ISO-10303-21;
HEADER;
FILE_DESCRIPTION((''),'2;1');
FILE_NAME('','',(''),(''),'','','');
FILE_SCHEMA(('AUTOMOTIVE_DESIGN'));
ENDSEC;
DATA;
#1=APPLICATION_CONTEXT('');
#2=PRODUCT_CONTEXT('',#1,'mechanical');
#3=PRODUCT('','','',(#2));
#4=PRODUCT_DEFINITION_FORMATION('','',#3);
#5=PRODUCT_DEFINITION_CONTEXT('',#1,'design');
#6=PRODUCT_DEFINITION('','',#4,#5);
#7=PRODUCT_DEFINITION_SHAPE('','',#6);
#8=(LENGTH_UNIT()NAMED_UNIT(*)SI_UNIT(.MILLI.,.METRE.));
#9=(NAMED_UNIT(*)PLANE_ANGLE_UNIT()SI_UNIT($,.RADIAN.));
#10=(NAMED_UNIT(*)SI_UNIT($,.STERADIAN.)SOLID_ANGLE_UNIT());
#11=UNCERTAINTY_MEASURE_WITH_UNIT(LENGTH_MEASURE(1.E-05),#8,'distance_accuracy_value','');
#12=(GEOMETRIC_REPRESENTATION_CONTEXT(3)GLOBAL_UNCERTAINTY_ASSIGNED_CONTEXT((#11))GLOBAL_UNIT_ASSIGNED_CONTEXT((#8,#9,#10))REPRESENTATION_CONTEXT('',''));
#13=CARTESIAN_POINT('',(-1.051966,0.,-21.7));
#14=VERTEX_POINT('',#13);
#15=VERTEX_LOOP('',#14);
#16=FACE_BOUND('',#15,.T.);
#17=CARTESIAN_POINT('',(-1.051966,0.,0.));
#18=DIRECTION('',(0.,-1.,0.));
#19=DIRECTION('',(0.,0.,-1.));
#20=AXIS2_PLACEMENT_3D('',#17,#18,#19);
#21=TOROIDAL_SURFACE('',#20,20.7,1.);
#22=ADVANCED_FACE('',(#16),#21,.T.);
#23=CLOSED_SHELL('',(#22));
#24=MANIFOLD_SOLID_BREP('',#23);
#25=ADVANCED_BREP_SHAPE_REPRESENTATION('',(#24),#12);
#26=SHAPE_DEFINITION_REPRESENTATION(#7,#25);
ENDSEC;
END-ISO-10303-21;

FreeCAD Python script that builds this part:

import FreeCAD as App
import Part
import Sketcher
from FreeCAD import Vector

doc = App.newDocument("Part")
body = doc.addObject("PartDesign::Body", "Body")

sketch1 = body.newObject("Sketcher::SketchObject", "Sketch")
sketch1.AttachmentSupport = (doc.getObject("XY_Plane"), [""])
sketch1.MapMode = "FlatFace"
sketch1.addGeometry(Part.Circle(Vector(19.648034, 0, 0), Vector(0, 0, 1), 1), False)
sketch1.addGeometry(Part.LineSegment(Vector(-1.051966, 0, 0), Vector(-1.051966, 10, 0)), True)
sketch1.addConstraint([
    Sketcher.Constraint("Vertical", 1),
    Sketcher.Constraint("PointOnObject", 0, 3, -1),
    Sketcher.Constraint("PointOnObject", 1, 1, -1),
    Sketcher.Constraint("Diameter", 0, 2.0),
    Sketcher.Constraint("DistanceY", 1, 1, 1, 2, 10.0),
    Sketcher.Constraint("DistanceX", 1, 1, 0, 3, 20.7),
    Sketcher.Constraint("DistanceX", -1, 1, 0, 3, 19.648034),
])
revolution = body.newObject("PartDesign::Revolution", "Revolution")
revolution.Profile = sketch1
revolution.ReferenceAxis = (sketch1, ["Axis0"])
revolution.Angle = 360

doc.recompute()
